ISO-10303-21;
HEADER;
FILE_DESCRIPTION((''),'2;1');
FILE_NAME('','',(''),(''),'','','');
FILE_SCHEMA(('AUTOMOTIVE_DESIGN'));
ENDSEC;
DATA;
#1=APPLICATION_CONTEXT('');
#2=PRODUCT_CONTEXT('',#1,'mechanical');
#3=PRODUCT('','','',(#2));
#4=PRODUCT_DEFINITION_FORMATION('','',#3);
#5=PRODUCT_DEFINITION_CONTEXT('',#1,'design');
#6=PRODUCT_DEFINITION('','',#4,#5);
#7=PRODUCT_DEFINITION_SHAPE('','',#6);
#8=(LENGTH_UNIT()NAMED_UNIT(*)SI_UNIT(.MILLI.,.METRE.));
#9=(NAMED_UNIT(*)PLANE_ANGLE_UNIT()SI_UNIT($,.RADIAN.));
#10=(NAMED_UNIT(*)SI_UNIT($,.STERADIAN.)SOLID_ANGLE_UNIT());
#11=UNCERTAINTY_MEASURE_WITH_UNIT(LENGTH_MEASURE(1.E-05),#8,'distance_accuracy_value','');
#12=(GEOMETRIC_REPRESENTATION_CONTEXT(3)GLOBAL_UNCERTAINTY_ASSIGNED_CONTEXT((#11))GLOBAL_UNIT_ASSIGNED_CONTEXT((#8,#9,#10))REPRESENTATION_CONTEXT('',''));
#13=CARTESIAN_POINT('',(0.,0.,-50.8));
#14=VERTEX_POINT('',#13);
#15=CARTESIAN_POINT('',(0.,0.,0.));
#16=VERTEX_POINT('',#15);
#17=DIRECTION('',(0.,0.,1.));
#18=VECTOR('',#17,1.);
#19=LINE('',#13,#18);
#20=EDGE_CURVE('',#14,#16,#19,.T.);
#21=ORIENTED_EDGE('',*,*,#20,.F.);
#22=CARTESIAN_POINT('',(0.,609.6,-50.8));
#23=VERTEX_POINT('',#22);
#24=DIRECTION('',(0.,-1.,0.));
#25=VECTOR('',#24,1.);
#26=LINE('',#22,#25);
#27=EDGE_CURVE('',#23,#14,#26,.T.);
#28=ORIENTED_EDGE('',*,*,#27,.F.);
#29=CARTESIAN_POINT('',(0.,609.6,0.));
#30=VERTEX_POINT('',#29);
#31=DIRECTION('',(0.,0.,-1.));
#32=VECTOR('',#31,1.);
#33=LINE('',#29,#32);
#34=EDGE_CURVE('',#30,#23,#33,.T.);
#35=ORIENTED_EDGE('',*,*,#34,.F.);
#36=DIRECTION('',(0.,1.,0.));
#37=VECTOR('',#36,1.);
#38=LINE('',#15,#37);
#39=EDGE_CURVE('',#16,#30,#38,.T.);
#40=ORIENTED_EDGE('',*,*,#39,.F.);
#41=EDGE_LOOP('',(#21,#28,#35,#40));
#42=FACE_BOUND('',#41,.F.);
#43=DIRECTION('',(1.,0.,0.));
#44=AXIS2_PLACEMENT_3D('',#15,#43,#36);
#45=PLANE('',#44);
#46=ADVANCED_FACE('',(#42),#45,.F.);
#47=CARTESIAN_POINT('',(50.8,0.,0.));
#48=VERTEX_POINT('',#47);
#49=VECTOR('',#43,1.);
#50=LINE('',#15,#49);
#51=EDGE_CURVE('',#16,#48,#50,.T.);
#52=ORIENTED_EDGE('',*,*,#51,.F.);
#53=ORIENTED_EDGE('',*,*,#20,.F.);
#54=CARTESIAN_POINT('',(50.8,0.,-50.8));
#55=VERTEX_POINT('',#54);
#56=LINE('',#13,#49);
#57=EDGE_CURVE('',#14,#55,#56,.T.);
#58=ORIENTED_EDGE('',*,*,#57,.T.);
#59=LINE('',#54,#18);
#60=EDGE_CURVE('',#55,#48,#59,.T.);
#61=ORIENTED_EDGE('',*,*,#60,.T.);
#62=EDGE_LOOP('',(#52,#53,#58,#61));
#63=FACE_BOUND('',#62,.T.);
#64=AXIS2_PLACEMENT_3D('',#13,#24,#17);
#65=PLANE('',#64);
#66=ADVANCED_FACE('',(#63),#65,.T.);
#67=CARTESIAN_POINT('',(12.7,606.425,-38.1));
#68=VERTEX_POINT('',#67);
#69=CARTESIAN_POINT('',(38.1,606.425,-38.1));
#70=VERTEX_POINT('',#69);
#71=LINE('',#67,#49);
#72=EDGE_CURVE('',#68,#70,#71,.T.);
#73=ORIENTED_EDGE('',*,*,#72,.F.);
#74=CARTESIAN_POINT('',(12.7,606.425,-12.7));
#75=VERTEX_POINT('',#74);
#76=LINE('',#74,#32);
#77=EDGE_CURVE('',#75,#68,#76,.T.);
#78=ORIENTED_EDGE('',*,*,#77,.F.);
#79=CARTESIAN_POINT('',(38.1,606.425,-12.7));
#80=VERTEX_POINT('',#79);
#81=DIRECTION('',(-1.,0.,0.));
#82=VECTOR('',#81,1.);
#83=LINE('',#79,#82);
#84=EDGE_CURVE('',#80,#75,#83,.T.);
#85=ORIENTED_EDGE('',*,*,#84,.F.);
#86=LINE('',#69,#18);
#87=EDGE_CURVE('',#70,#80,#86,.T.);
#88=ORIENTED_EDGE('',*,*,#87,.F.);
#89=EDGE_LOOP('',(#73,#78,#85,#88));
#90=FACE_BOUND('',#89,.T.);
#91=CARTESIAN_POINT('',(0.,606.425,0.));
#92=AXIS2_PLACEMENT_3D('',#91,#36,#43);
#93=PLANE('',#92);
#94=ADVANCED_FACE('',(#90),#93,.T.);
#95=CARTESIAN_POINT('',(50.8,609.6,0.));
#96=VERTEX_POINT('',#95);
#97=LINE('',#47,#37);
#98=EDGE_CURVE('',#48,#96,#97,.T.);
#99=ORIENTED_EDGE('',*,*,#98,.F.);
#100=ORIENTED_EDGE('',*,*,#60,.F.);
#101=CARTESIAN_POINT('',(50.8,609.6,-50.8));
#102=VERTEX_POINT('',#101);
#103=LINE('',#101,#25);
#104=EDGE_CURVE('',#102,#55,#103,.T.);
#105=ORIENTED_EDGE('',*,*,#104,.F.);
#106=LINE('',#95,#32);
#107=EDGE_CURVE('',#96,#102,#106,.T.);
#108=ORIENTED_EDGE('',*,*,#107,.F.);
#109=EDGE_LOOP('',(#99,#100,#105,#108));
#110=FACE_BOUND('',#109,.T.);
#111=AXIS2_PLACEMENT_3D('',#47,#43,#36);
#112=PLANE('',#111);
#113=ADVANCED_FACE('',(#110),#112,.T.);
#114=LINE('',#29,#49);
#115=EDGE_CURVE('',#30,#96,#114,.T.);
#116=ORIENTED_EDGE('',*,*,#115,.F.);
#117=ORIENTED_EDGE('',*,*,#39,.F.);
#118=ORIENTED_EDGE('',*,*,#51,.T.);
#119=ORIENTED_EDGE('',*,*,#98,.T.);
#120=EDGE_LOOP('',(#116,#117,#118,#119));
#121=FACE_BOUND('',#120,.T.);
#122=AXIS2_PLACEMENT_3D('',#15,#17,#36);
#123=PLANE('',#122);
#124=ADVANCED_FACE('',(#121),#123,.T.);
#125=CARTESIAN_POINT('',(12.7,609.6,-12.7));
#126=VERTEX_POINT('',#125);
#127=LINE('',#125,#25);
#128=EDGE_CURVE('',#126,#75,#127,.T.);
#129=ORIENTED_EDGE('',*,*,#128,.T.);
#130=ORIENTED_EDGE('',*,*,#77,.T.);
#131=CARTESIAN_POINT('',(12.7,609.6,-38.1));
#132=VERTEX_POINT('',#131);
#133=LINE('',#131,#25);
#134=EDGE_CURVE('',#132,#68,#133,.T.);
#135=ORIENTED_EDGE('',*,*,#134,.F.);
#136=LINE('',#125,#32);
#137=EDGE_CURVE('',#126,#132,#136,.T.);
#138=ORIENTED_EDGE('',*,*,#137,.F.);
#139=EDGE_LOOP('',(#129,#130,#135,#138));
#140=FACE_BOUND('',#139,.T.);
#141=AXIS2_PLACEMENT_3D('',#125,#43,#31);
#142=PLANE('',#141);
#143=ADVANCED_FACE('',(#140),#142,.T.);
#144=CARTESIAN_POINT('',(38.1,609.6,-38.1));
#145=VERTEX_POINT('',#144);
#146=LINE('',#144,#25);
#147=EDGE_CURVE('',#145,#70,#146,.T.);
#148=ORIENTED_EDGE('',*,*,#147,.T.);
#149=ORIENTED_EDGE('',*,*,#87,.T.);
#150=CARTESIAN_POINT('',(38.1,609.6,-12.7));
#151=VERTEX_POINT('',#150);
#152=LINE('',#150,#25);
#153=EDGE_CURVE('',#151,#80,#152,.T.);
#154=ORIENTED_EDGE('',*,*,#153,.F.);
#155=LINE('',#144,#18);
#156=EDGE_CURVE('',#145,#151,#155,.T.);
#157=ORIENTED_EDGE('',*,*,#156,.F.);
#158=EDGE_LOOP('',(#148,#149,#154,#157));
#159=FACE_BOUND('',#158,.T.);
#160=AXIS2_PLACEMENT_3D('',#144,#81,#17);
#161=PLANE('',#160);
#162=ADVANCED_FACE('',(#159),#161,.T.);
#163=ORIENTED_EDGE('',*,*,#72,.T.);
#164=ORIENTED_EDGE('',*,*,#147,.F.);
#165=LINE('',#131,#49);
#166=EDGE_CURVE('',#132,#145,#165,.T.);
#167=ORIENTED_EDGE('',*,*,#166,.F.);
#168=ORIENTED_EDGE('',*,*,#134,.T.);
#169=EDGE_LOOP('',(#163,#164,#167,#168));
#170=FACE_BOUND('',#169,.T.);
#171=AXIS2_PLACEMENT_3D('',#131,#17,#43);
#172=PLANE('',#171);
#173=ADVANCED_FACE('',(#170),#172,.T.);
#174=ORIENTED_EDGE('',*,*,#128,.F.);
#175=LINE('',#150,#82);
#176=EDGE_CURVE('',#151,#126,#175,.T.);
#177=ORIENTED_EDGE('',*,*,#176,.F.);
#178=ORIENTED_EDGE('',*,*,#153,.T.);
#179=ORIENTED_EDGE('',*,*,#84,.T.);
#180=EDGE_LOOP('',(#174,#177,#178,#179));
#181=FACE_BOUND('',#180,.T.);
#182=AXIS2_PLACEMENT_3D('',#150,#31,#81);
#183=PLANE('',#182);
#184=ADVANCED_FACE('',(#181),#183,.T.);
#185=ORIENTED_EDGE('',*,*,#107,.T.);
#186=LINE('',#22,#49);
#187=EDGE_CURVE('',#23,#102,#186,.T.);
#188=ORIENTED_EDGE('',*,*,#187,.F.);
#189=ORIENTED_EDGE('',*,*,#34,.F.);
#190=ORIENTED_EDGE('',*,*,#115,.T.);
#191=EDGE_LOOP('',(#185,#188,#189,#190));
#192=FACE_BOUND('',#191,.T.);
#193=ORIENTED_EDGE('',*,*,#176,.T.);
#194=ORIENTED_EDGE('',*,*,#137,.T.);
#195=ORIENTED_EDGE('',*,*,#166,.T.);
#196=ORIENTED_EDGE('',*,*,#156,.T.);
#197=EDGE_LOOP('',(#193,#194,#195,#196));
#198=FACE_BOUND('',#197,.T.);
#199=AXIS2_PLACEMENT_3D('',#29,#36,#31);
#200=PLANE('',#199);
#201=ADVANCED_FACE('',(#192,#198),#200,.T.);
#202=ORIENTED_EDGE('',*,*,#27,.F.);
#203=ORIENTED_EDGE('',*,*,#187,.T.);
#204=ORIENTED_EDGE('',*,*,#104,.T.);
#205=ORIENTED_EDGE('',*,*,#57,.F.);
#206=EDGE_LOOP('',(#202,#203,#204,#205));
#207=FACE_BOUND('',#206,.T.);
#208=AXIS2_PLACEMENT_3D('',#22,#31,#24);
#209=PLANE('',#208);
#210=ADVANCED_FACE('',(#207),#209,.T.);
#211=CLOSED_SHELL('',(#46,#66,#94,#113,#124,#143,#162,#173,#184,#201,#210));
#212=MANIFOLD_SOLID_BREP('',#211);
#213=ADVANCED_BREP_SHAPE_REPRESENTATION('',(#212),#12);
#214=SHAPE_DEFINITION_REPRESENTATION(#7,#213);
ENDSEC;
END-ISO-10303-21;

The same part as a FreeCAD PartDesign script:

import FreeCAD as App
import Part
import Sketcher

V = App.Vector
Q = App.Units.Quantity

doc = App.newDocument("Part")
params = doc.addObject("Spreadsheet::Sheet", "Params")
for row, (alias, value) in enumerate([
    ("sketch1_width", "24 in"),
    ("sketch1_height", "2 in"),
    ("pad1_length", "2 in"),
    ("sketch2_width", "1 in"),
    ("pocket1_length", "0.125 in"),
], start=1):
    params.set(f"A{row}", alias)
    params.set(f"B{row}", "=" + value)
    params.setAlias(f"B{row}", alias)

body = doc.addObject("PartDesign::Body", "Body")

sketch1 = doc.addObject("Sketcher::SketchObject", "Sketch")
body.addObject(sketch1)
sketch1.AttachmentSupport = (doc.YZ_Plane, [""])
sketch1.MapMode = "FlatFace"
sketch1.addGeometry([
    Part.LineSegment(V(610, 0, 0), V(0, 0, 0)),
    Part.LineSegment(V(0, 0, 0), V(0, -51, 0)),
    Part.LineSegment(V(0, -51, 0), V(610, -51, 0)),
    Part.LineSegment(V(610, -51, 0), V(610, 0, 0)),
], False)
sketch1.addConstraint([
    Sketcher.Constraint("Coincident", 0, 2, 1, 1),
    Sketcher.Constraint("Coincident", 1, 2, 2, 1),
    Sketcher.Constraint("Coincident", 2, 2, 3, 1),
    Sketcher.Constraint("Coincident", 3, 2, 0, 1),
    Sketcher.Constraint("Horizontal", 0),
    Sketcher.Constraint("Vertical", 1),
    Sketcher.Constraint("Horizontal", 2),
    Sketcher.Constraint("Vertical", 3),
    Sketcher.Constraint("Coincident", 0, 2, -1, 1),
    Sketcher.Constraint("DistanceX", 0, 2, 0, 1, Q("24 in")),
    Sketcher.Constraint("DistanceY", 1, 2, 1, 1, Q("2 in")),
])
sketch1.setExpression("Constraints[9]", "Params.sketch1_width")
sketch1.setExpression("Constraints[10]", "Params.sketch1_height")
pad1 = doc.addObject("PartDesign::Pad", "Pad")
body.addObject(pad1)
pad1.Profile = sketch1
pad1.setExpression("Length", "Params.pad1_length")

sketch2 = doc.addObject("Sketcher::SketchObject", "Sketch001")
body.addObject(sketch2)
sketch2.AttachmentSupport = (doc.XZ_Plane, [""])
sketch2.MapMode = "FlatFace"
sketch2.AttachmentOffset = App.Placement(V(0, 0, -24 * 25.4), App.Rotation())
sketch2.addGeometry([
    Part.LineSegment(V(38, -38, 0), V(13, -38, 0)),
    Part.LineSegment(V(13, -38, 0), V(13, -13, 0)),
    Part.LineSegment(V(13, -13, 0), V(38, -13, 0)),
    Part.LineSegment(V(38, -13, 0), V(38, -38, 0)),
], False)
sketch2.addConstraint([
    Sketcher.Constraint("Coincident", 0, 2, 1, 1),
    Sketcher.Constraint("Coincident", 1, 2, 2, 1),
    Sketcher.Constraint("Coincident", 2, 2, 3, 1),
    Sketcher.Constraint("Coincident", 3, 2, 0, 1),
    Sketcher.Constraint("Horizontal", 0),
    Sketcher.Constraint("Vertical", 1),
    Sketcher.Constraint("Horizontal", 2),
    Sketcher.Constraint("Vertical", 3),
    Sketcher.Constraint("Equal", 2, 1),
    Sketcher.Constraint("DistanceX", 0, 2, 0, 1, Q("1 in")),
    Sketcher.Constraint("DistanceX", -1, 1, 0, 2, Q("0.5 in")),
    Sketcher.Constraint("DistanceY", 1, 2, -1, 1, Q("0.5 in")),
])
sketch2.setExpression("Constraints[9]", "Params.sketch2_width")
pocket1 = doc.addObject("PartDesign::Pocket", "Pocket")
body.addObject(pocket1)
pocket1.Profile = sketch2
pocket1.setExpression("Length", "Params.pocket1_length")
pocket1.Reversed = True

doc.recompute()
